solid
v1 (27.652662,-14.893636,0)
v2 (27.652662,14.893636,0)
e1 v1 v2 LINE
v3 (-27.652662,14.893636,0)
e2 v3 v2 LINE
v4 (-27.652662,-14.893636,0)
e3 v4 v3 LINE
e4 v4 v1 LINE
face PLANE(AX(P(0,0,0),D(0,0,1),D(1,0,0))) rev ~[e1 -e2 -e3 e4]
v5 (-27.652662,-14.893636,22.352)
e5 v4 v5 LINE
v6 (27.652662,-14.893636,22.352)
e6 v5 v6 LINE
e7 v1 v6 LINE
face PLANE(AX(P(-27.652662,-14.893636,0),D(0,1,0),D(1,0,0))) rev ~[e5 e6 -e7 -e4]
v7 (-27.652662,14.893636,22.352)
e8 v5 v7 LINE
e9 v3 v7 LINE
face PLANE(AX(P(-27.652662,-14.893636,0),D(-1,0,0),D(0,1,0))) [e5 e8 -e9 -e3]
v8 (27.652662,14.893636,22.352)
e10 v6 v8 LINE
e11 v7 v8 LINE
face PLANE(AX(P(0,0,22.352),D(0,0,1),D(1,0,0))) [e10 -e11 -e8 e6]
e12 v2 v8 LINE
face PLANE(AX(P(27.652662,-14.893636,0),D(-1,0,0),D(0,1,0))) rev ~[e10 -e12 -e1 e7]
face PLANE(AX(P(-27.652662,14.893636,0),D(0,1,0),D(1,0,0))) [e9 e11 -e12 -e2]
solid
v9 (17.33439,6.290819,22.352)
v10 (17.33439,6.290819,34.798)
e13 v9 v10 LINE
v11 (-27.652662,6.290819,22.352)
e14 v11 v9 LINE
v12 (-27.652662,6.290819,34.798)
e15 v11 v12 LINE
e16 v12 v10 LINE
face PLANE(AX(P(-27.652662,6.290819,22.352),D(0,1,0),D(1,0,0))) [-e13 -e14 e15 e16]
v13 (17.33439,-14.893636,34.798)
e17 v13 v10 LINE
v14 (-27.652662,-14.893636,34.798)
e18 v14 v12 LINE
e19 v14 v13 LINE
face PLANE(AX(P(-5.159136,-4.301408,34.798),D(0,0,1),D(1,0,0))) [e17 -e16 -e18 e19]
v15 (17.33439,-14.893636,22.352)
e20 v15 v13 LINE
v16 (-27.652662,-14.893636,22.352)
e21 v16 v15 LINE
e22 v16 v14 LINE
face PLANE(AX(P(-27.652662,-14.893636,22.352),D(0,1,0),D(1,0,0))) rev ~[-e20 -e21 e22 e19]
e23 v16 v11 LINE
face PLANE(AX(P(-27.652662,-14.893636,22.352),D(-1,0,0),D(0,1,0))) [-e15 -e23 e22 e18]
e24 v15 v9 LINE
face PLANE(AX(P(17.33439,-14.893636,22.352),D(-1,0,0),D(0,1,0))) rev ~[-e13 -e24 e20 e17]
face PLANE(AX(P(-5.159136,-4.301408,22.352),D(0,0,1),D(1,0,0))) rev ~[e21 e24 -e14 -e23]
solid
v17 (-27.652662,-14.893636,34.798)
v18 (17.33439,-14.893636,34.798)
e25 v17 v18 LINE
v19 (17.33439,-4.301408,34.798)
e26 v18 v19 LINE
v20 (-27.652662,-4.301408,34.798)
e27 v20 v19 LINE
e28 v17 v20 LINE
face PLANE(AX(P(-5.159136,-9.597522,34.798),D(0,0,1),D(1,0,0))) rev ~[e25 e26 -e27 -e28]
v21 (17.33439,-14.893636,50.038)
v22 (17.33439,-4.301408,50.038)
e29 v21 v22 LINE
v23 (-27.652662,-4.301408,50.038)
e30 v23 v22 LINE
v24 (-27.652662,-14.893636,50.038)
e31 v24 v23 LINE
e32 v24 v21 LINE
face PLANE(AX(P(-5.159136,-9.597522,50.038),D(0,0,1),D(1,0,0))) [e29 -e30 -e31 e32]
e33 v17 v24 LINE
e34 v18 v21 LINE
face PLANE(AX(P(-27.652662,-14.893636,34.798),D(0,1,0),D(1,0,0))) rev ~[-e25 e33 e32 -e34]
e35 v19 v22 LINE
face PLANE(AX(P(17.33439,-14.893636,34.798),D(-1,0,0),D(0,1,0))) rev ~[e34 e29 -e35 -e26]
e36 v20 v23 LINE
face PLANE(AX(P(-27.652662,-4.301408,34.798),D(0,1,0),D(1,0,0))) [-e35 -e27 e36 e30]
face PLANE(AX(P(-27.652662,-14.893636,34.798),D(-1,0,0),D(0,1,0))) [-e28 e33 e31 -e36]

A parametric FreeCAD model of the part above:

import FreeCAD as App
import Part
import Sketcher

V = App.Vector
Q = App.Units.Quantity

doc = App.newDocument("Part")
body = doc.addObject("PartDesign::Body", "Body")

sketch1 = body.newObject("Sketcher::SketchObject", "Sketch")
sketch1.AttachmentSupport = (doc.getObject("XY_Plane"), [""])
sketch1.MapMode = "FlatFace"
sketch1.addGeometry([
    Part.LineSegment(V(-27.652662, 14.893636, 0), V(-27.652662, -14.893636, 0)),
    Part.LineSegment(V(-27.652662, -14.893636, 0), V(27.652662, -14.893636, 0)),
    Part.LineSegment(V(27.652662, -14.893636, 0), V(27.652662, 14.893636, 0)),
    Part.LineSegment(V(27.652662, 14.893636, 0), V(-27.652662, 14.893636, 0)),
], False)
sketch1.addConstraint([
    Sketcher.Constraint("Coincident", 0, 2, 1, 1),
    Sketcher.Constraint("Coincident", 1, 2, 2, 1),
    Sketcher.Constraint("Coincident", 2, 2, 3, 1),
    Sketcher.Constraint("Coincident", 3, 2, 0, 1),
    Sketcher.Constraint("Vertical", 0),
    Sketcher.Constraint("Horizontal", 1),
    Sketcher.Constraint("Vertical", 2),
    Sketcher.Constraint("Horizontal", 3),
    Sketcher.Constraint("Symmetric", 0, 2, 2, 2, -1, 1),
    Sketcher.Constraint("DistanceX", 1, 1, 1, 2, Q("55.305324 mm")),
    Sketcher.Constraint("DistanceY", 0, 2, 0, 1, Q("29.787272 mm")),
])
pad1 = body.newObject("PartDesign::Pad", "Pad")
pad1.Profile = sketch1
pad1.Length = Q("0.88 in")
body2 = doc.addObject("PartDesign::Body", "Body001")

sketch2 = body2.newObject("Sketcher::SketchObject", "Sketch001")
sketch2.AttachmentSupport = (doc.getObject("XY_Plane001"), [""])
sketch2.MapMode = "FlatFace"
sketch2.AttachmentOffset = App.Placement(V(0, 0, 0.88 * 25.4), App.Rotation())
sketch2.addGeometry([
    Part.LineSegment(V(-27.652662, 6.290819, 0), V(-27.652662, -14.893636, 0)),
    Part.LineSegment(V(-27.652662, -14.893636, 0), V(17.33439, -14.893636, 0)),
    Part.LineSegment(V(17.33439, -14.893636, 0), V(17.33439, 6.290819, 0)),
    Part.LineSegment(V(17.33439, 6.290819, 0), V(-27.652662, 6.290819, 0)),
], False)
sketch2.addConstraint([
    Sketcher.Constraint("Coincident", 0, 2, 1, 1),
    Sketcher.Constraint("Coincident", 1, 2, 2, 1),
    Sketcher.Constraint("Coincident", 2, 2, 3, 1),
    Sketcher.Constraint("Coincident", 3, 2, 0, 1),
    Sketcher.Constraint("Vertical", 0),
    Sketcher.Constraint("Horizontal", 1),
    Sketcher.Constraint("Vertical", 2),
    Sketcher.Constraint("Horizontal", 3),
    Sketcher.Constraint("DistanceX", 1, 1, 1, 2, Q("44.987052 mm")),
    Sketcher.Constraint("DistanceY", 0, 2, 0, 1, Q("21.184455 mm")),
    Sketcher.Constraint("DistanceX", 0, 2, -1, 1, Q("27.652662 mm")),
    Sketcher.Constraint("DistanceY", -1, 1, 2, 2, Q("6.290819 mm")),
])
pad2 = body2.newObject("PartDesign::Pad", "Pad001")
pad2.Profile = sketch2
pad2.Length = Q("0.49 in")
body3 = doc.addObject("PartDesign::Body", "Body002")

sketch3 = body3.newObject("Sketcher::SketchObject", "Sketch002")
sketch3.AttachmentSupport = (doc.getObject("XY_Plane002"), [""])
sketch3.MapMode = "FlatFace"
sketch3.AttachmentOffset = App.Placement(V(0, 0, 1.37 * 25.4), App.Rotation())
sketch3.addGeometry([
    Part.LineSegment(V(-27.652662, -4.301408, 0), V(-27.652662, -14.893636, 0)),
    Part.LineSegment(V(-27.652662, -14.893636, 0), V(17.33439, -14.893636, 0)),
    Part.LineSegment(V(17.33439, -14.893636, 0), V(17.33439, -4.301408, 0)),
    Part.LineSegment(V(17.33439, -4.301408, 0), V(-27.652662, -4.301408, 0)),
], False)
sketch3.addConstraint([
    Sketcher.Constraint("Coincident", 0, 2, 1, 1),
    Sketcher.Constraint("Coincident", 1, 2, 2, 1),
    Sketcher.Constraint("Coincident", 2, 2, 3, 1),
    Sketcher.Constraint("Coincident", 3, 2, 0, 1),
    Sketcher.Constraint("Vertical", 0),
    Sketcher.Constraint("Horizontal", 1),
    Sketcher.Constraint("Vertical", 2),
    Sketcher.Constraint("Horizontal", 3),
    Sketcher.Constraint("DistanceX", 1, 1, 1, 2, Q("44.987052 mm")),
    Sketcher.Constraint("DistanceY", 0, 2, 0, 1, Q("10.592228 mm")),
    Sketcher.Constraint("DistanceX", 0, 2, -1, 1, Q("27.652662 mm")),
    Sketcher.Constraint("DistanceY", 2, 2, -1, 1, Q("4.301408 mm")),
])
pad3 = body3.newObject("PartDesign::Pad", "Pad002")
pad3.Profile = sketch3
pad3.Length = Q("0.6 in")

doc.recompute()
